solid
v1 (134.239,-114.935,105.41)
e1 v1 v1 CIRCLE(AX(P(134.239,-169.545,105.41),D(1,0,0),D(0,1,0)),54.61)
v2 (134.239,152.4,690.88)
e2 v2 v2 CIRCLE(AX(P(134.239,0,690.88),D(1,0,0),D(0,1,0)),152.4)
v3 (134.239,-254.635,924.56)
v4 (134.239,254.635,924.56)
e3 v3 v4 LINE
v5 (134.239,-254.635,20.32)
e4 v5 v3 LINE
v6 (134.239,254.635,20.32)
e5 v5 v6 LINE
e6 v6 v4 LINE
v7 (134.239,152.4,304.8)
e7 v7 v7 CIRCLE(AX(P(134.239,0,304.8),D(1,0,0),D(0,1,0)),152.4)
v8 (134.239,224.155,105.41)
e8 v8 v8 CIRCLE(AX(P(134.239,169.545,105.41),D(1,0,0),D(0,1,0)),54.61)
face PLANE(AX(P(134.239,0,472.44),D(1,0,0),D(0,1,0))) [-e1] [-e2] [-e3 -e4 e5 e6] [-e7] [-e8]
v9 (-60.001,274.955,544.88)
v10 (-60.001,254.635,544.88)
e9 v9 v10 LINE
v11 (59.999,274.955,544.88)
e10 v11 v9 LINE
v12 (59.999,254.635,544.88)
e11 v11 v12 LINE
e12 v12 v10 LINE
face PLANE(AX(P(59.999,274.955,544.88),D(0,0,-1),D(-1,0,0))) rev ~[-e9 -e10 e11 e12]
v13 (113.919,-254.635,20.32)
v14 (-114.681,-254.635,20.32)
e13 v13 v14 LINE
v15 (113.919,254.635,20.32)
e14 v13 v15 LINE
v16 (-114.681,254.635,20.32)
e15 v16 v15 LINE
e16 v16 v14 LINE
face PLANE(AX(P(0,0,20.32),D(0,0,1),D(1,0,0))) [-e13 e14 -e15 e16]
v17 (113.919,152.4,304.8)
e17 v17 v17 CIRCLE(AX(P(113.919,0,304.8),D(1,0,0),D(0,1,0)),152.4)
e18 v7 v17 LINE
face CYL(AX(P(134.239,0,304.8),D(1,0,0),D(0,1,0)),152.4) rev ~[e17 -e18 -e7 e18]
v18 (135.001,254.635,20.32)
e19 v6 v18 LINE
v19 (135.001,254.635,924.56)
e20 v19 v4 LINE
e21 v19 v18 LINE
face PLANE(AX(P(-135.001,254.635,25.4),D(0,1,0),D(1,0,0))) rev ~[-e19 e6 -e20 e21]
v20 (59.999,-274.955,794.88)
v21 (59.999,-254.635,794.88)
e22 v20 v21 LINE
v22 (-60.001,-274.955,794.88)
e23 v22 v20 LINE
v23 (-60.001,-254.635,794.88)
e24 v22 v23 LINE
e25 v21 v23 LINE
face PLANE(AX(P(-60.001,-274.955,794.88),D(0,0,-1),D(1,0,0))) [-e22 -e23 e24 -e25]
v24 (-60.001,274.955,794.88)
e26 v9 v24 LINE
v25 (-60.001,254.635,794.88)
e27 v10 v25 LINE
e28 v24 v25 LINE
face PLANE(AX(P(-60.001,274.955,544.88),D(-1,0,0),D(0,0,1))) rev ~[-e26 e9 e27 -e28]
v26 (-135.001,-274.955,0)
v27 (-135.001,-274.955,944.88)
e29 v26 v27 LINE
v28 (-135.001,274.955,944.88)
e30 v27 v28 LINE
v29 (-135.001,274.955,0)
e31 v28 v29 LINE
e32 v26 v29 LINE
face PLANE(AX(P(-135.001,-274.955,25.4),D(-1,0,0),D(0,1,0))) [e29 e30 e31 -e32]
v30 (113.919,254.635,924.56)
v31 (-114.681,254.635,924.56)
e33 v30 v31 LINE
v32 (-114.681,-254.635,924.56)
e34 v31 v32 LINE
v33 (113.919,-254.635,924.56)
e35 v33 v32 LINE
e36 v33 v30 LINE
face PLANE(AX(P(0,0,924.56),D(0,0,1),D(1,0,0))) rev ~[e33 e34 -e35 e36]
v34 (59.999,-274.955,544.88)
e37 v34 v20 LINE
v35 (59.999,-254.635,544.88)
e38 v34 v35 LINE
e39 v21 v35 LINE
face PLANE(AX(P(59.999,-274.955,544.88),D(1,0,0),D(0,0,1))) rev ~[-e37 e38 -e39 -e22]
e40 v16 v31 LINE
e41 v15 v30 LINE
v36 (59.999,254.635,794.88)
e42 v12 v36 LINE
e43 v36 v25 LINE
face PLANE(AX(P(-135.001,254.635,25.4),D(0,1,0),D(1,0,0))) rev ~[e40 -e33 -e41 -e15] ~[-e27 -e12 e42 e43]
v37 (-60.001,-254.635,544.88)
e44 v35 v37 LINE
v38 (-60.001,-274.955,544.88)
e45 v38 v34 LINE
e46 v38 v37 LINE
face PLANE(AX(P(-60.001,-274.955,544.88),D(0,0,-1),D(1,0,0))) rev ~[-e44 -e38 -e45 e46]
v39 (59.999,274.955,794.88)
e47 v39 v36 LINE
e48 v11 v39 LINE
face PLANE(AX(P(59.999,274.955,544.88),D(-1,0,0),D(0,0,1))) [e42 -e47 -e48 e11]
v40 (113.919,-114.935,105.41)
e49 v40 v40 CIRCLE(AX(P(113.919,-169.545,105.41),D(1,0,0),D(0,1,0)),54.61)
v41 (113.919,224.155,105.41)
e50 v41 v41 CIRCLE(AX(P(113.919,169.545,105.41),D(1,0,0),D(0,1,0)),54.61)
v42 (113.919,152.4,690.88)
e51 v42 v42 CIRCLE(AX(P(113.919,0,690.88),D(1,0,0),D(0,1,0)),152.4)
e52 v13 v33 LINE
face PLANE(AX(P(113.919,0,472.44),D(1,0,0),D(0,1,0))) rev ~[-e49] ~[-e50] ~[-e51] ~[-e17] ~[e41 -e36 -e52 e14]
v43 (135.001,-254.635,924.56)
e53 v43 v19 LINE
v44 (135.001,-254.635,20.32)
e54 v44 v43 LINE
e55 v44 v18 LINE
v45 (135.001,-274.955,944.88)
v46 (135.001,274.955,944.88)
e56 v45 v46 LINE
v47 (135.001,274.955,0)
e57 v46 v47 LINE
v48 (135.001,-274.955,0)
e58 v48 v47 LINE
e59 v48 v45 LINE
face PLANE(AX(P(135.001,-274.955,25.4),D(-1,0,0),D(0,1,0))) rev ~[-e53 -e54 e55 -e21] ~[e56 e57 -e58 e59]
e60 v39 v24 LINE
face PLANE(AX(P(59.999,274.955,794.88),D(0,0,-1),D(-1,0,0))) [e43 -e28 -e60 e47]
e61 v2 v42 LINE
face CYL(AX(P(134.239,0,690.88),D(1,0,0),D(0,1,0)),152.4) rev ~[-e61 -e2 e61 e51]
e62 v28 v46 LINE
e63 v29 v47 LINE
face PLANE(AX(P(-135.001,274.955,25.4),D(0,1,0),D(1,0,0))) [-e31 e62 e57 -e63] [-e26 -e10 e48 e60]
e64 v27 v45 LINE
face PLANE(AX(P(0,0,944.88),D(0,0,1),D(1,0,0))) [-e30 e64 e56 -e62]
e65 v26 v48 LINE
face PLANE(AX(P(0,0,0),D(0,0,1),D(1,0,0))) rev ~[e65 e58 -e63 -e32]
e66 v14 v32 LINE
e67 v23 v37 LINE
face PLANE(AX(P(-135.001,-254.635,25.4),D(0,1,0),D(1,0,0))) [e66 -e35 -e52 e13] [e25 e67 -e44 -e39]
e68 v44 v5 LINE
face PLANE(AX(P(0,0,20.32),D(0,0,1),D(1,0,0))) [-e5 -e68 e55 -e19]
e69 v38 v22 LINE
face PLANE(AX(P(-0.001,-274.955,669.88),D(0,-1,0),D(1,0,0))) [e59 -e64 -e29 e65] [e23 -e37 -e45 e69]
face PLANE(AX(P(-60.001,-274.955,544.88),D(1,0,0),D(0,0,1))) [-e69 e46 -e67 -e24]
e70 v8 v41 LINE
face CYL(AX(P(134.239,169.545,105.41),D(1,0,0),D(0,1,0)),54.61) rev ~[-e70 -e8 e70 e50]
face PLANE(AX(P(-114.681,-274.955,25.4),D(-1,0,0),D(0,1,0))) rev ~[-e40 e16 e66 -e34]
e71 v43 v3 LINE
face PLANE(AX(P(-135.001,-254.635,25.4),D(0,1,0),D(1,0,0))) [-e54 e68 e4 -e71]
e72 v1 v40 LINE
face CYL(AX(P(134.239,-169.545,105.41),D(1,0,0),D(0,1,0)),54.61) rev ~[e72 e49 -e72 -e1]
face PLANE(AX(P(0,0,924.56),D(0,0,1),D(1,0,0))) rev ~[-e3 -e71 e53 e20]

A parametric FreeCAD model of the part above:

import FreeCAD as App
import Part
import Sketcher
from FreeCAD import Vector
Q = App.Units.Quantity


def faces_at(feature, points):
    """Names of the faces that lie closest to the given points."""
    faces = feature.Shape.Faces
    near = lambda p: min(range(len(faces)), key=lambda i: faces[i].distToShape(Part.Vertex(*p))[0])
    return sorted({f"Face{near(p) + 1}" for p in points})


def add_polygon(sketch, points):
    """Adds a closed chain of lines whose ends are joined by coincident constraints."""
    first, n = sketch.GeometryCount, len(points)
    for a, b in zip(points, points[1:] + points[:1]):
        sketch.addGeometry(Part.LineSegment(App.Vector(*a, 0), App.Vector(*b, 0)), False)
    for i in range(n):
        sketch.addConstraint(Sketcher.Constraint("Coincident", first + i, 2, first + (i + 1) % n, 1))

doc = App.newDocument("Part")
body = doc.addObject("PartDesign::Body", "Body")

# Sketch on XY plane
sketch1 = body.newObject("Sketcher::SketchObject", "Sketch")
sketch1.AttachmentSupport = (doc.getObject("XY_Plane"), [""])
sketch1.MapMode = "FlatFace"
add_polygon(sketch1, [(-135, 275), (-135, -275), (135, -275), (135, 275)])  # lines 0-3
sketch1.addConstraint([
    Sketcher.Constraint("Vertical", 0),
    Sketcher.Constraint("Horizontal", 1),
    Sketcher.Constraint("Vertical", 2),
    Sketcher.Constraint("Horizontal", 3),
    Sketcher.Constraint("Symmetric", 0, 2, 2, 2, -1, 1),
    Sketcher.Constraint("DistanceX", 1, 1, 1, 2, Q("10.63 in")),
    Sketcher.Constraint("DistanceY", 0, 2, 0, 1, Q("21.65 in")),
])
pad1 = body.newObject("PartDesign::Pad", "Pad")
pad1.Profile = sketch1
pad1.Length = Q("1 in")

# Sketch on XY plane
sketch2 = body.newObject("Sketcher::SketchObject", "Sketch001")
sketch2.AttachmentSupport = (doc.getObject("XY_Plane"), [""])
sketch2.MapMode = "FlatFace"
sketch2.AttachmentOffset = App.Placement(Vector(0, 0, 1 * 25.4), App.Rotation())
add_polygon(sketch2, [(-135, 275), (-135, -275), (135, -275), (135, 275)])  # lines 0-3
sketch2.addConstraint([
    Sketcher.Constraint("Vertical", 0),
    Sketcher.Constraint("Horizontal", 1),
    Sketcher.Constraint("Vertical", 2),
    Sketcher.Constraint("Horizontal", 3),
    Sketcher.Constraint("Symmetric", 0, 2, 2, 2, -1, 1),
    Sketcher.Constraint("DistanceX", 1, 1, 1, 2, Q("10.63 in")),
    Sketcher.Constraint("DistanceY", 0, 2, 0, 1, Q("21.65 in")),
])
pad2 = body.newObject("PartDesign::Pad", "Pad001")
pad2.Profile = sketch2
pad2.Length = Q("36.2 in")
doc.recompute()

thickness = body.newObject("PartDesign::Thickness", "Thickness")
thickness.Base = (pad2, faces_at(pad2, [(135.001, 0, 472.44)]))
thickness.Value = Q("0.8 in")
thickness.Reversed = True
thickness.Join = "Arc"

# Sketch on YZ plane
sketch3 = body.newObject("Sketcher::SketchObject", "Sketch002")
sketch3.AttachmentSupport = (doc.getObject("YZ_Plane"), [""])
sketch3.MapMode = "FlatFace"
sketch3.AttachmentOffset = App.Placement(Vector(0, 0, 4.485 * 25.4), App.Rotation())
add_polygon(sketch3, [(-255, 925), (-255, 20), (255, 20), (255, 925)])  # lines 0-3
sketch3.addConstraint([
    Sketcher.Constraint("Vertical", 0),
    Sketcher.Constraint("Horizontal", 1),
    Sketcher.Constraint("Vertical", 2),
    Sketcher.Constraint("Horizontal", 3),
    Sketcher.Constraint("DistanceY", 0, 2, 0, 1, Q("35.6 in")),
    Sketcher.Constraint("DistanceX", 1, 1, 1, 2, Q("20.05 in")),
    Sketcher.Constraint("DistanceY", -1, 1, 0, 2, Q("0.8 in")),
    Sketcher.Constraint("DistanceX", 0, 2, -1, 1, Q("10.025 in")),
])
pad3 = body.newObject("PartDesign::Pad", "Pad002")
pad3.Profile = sketch3
pad3.Length = Q("0.8 in")

# Sketch on YZ plane
sketch4 = body.newObject("Sketcher::SketchObject", "Sketch003")
sketch4.AttachmentSupport = (doc.getObject("YZ_Plane"), [""])
sketch4.MapMode = "FlatFace"
sketch4.AttachmentOffset = App.Placement(Vector(0, 0, 5.285 * 25.4), App.Rotation())
sketch4.addGeometry(Part.Circle(Vector(0, 691, 0), Vector(0, 0, 1), 152), False)
sketch4.addConstraint([
    Sketcher.Constraint("PointOnObject", 0, 3, -2),
    Sketcher.Constraint("Diameter", 0, Q("12 in")),
    Sketcher.Constraint("DistanceY", -1, 1, 0, 3, Q("27.2 in")),
])
pocket1 = body.newObject("PartDesign::Pocket", "Pocket")
pocket1.Profile = sketch4
pocket1.Length = Q("1 in")

# Sketch on YZ plane
sketch5 = body.newObject("Sketcher::SketchObject", "Sketch004")
sketch5.AttachmentSupport = (doc.getObject("YZ_Plane"), [""])
sketch5.MapMode = "FlatFace"
sketch5.AttachmentOffset = App.Placement(Vector(0, 0, 5.285 * 25.4), App.Rotation())
sketch5.addGeometry(Part.Circle(Vector(0, 305, 0), Vector(0, 0, 1), 152), False)
sketch5.addConstraint([
    Sketcher.Constraint("PointOnObject", 0, 3, -2),
    Sketcher.Constraint("Diameter", 0, Q("12 in")),
    Sketcher.Constraint("DistanceY", -1, 1, 0, 3, Q("12 in")),
])
pocket2 = body.newObject("PartDesign::Pocket", "Pocket001")
pocket2.Profile = sketch5
pocket2.Length = Q("1 in")

# Sketch on YZ plane
sketch6 = body.newObject("Sketcher::SketchObject", "Sketch005")
sketch6.AttachmentSupport = (doc.getObject("YZ_Plane"), [""])
sketch6.MapMode = "FlatFace"
sketch6.AttachmentOffset = App.Placement(Vector(0, 0, 5.285 * 25.4), App.Rotation())
sketch6.addGeometry(Part.Circle(Vector(-170, 105, 0), Vector(0, 0, 1), 55), False)
sketch6.addConstraint([
    Sketcher.Constraint("Diameter", 0, Q("4.3 in")),
    Sketcher.Constraint("DistanceY", -1, 1, 0, 3, Q("4.15 in")),
    Sketcher.Constraint("DistanceX", 0, 3, -1, 1, Q("6.675 in")),
])
pocket3 = body.newObject("PartDesign::Pocket", "Pocket002")
pocket3.Profile = sketch6
pocket3.Length = Q("1 in")

# Sketch on YZ plane
sketch7 = body.newObject("Sketcher::SketchObject", "Sketch006")
sketch7.AttachmentSupport = (doc.getObject("YZ_Plane"), [""])
sketch7.MapMode = "FlatFace"
sketch7.AttachmentOffset = App.Placement(Vector(0, 0, 5.285 * 25.4), App.Rotation())
sketch7.addGeometry(Part.Circle(Vector(170, 105, 0), Vector(0, 0, 1), 55), False)
sketch7.addConstraint([
    Sketcher.Constraint("Diameter", 0, Q("4.3 in")),
    Sketcher.Constraint("DistanceY", -1, 1, 0, 3, Q("4.15 in")),
    Sketcher.Constraint("DistanceX", -1, 1, 0, 3, Q("6.675 in")),
])
pocket4 = body.newObject("PartDesign::Pocket", "Pocket003")
pocket4.Profile = sketch7
pocket4.Length = Q("1 in")

# Sketch on XZ plane
sketch8 = body.newObject("Sketcher::SketchObject", "Sketch007")
sketch8.AttachmentSupport = (doc.getObject("XZ_Plane"), [""])
sketch8.MapMode = "FlatFace"
sketch8.AttachmentOffset = App.Placement(Vector(0, 0, 10.825 * 25.4), App.Rotation())
add_polygon(sketch8, [(-60, 795), (-60, 545), (60, 545), (60, 795)])  # lines 0-3
sketch8.addConstraint([
    Sketcher.Constraint("Vertical", 0),
    Sketcher.Constraint("Horizontal", 1),
    Sketcher.Constraint("Vertical", 2),
    Sketcher.Constraint("Horizontal", 3),
    Sketcher.Constraint("DistanceX", 1, 1, 1, 2, 120.0),
    Sketcher.Constraint("DistanceY", 0, 2, 0, 1, 250.0),
    Sketcher.Constraint("DistanceX", 0, 2, -1, 1, 60.001),
    Sketcher.Constraint("DistanceY", -1, 1, 0, 2, 544.88),
])
pad4 = body.newObject("PartDesign::Pad", "Pad003")
pad4.Profile = sketch8
pad4.Length = 22
pad4.Reversed = True

# Sketch on XZ plane
sketch9 = body.newObject("Sketcher::SketchObject", "Sketch008")
sketch9.AttachmentSupport = (doc.getObject("XZ_Plane"), [""])
sketch9.MapMode = "FlatFace"
sketch9.AttachmentOffset = App.Placement(Vector(0, 0, 10.825 * 25.4), App.Rotation())
add_polygon(sketch9, [(-60, 795), (-60, 545), (60, 545), (60, 795)])  # lines 0-3
sketch9.addConstraint([
    Sketcher.Constraint("Vertical", 0),
    Sketcher.Constraint("Horizontal", 1),
    Sketcher.Constraint("Vertical", 2),
    Sketcher.Constraint("Horizontal", 3),
    Sketcher.Constraint("DistanceX", 1, 1, 1, 2, 120.0),
    Sketcher.Constraint("DistanceY", 0, 2, 0, 1, 250.0),
    Sketcher.Constraint("DistanceX", 0, 2, -1, 1, 60.001),
    Sketcher.Constraint("DistanceY", -1, 1, 0, 2, 544.88),
])
pocket5 = body.newObject("PartDesign::Pocket", "Pocket004")
pocket5.Profile = sketch9
pocket5.Length = Q("2.2 in")

# Sketch on XZ plane
sketch10 = body.newObject("Sketcher::SketchObject", "Sketch009")
sketch10.AttachmentSupport = (doc.getObject("XZ_Plane"), [""])
sketch10.MapMode = "FlatFace"
sketch10.AttachmentOffset = App.Placement(Vector(0, 0, -10.825 * 25.4), App.Rotation())
add_polygon(sketch10, [(60, 795), (60, 545), (-60, 545), (-60, 795)])  # lines 0-3
sketch10.addConstraint([
    Sketcher.Constraint("Vertical", 0),
    Sketcher.Constraint("Horizontal", 1),
    Sketcher.Constraint("Vertical", 2),
    Sketcher.Constraint("Horizontal", 3),
    Sketcher.Constraint("DistanceX", 1, 2, 1, 1, 120.0),
    Sketcher.Constraint("DistanceY", 0, 2, 0, 1, 250.0),
    Sketcher.Constraint("DistanceX", -1, 1, 0, 2, 59.999),
    Sketcher.Constraint("DistanceY", -1, 1, 0, 2, 544.88),
])
pocket6 = body.newObject("PartDesign::Pocket", "Pocket005")
pocket6.Profile = sketch10
pocket6.Length = Q("2 in")
pocket6.Reversed = True

doc.recompute()
